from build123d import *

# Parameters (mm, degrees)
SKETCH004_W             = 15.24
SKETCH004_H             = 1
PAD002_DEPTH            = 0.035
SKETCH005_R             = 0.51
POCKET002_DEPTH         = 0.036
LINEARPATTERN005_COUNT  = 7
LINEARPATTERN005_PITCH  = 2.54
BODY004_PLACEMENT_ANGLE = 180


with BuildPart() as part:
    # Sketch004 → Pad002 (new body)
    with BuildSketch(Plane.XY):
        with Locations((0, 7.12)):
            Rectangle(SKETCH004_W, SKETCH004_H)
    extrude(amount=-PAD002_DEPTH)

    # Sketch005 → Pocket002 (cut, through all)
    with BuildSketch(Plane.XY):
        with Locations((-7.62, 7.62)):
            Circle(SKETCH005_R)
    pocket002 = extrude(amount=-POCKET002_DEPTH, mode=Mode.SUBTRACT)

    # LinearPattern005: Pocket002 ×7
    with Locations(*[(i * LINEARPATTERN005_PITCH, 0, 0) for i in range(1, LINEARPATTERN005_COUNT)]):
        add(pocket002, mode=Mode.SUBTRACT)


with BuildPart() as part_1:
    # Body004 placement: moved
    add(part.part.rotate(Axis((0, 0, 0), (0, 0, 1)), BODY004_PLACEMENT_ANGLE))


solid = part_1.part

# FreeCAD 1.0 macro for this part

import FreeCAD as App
import Part
import Sketcher
Q = App.Units.Quantity

doc = App.newDocument("Part")
body = doc.addObject("PartDesign::Body", "Body")

# Sketch on XY plane
sketch1 = doc.addObject("Sketcher::SketchObject", "Sketch")
body.addObject(sketch1)
sketch1.AttachmentSupport = (doc.XY_Plane, [""])
sketch1.MapMode = "FlatFace"
sketch1.addGeometry([
    Part.LineSegment(App.Vector(-7.62, 7.62, 0), App.Vector(-7.62, 6.62, 0)),
    Part.LineSegment(App.Vector(-7.62, 6.62, 0), App.Vector(7.62, 6.62, 0)),
    Part.LineSegment(App.Vector(7.62, 6.62, 0), App.Vector(7.62, 7.62, 0)),
    Part.LineSegment(App.Vector(7.62, 7.62, 0), App.Vector(-7.62, 7.62, 0)),
], False)
sketch1.addConstraint([
    Sketcher.Constraint("Coincident", 0, 2, 1, 1),
    Sketcher.Constraint("Coincident", 1, 2, 2, 1),
    Sketcher.Constraint("Coincident", 2, 2, 3, 1),
    Sketcher.Constraint("Coincident", 3, 2, 0, 1),
    Sketcher.Constraint("Vertical", 0),
    Sketcher.Constraint("Horizontal", 1),
    Sketcher.Constraint("Vertical", 2),
    Sketcher.Constraint("Horizontal", 3),
    Sketcher.Constraint("DistanceY", 0, 2, 0, 1, Q("1 mm")),
    Sketcher.Constraint("DistanceX", 1, 1, 1, 2, Q("15.24 mm")),
    Sketcher.Constraint("DistanceX", 0, 2, -1, 1, Q("7.62 mm")),
    Sketcher.Constraint("DistanceY", -1, 1, 0, 2, Q("6.62 mm")),
])
pad1 = doc.addObject("PartDesign::Pad", "Pad")
body.addObject(pad1)
pad1.Profile = sketch1
pad1.Length = 0.035
pad1.Reversed = True

# Sketch on XY plane
sketch2 = doc.addObject("Sketcher::SketchObject", "Sketch001")
body.addObject(sketch2)
sketch2.AttachmentSupport = (doc.XY_Plane, [""])
sketch2.MapMode = "FlatFace"
sketch2.addGeometry(Part.Circle(App.Vector(-7.62, 7.62, 0), App.Vector(0, 0, 1), 0.51), False)
sketch2.addConstraint([
    Sketcher.Constraint("Diameter", 0, Q("1.02 mm")),
    Sketcher.Constraint("DistanceX", 0, 3, -1, 1, Q("7.62 mm")),
    Sketcher.Constraint("DistanceY", -1, 1, 0, 3, Q("7.62 mm")),
])
pocket1 = doc.addObject("PartDesign::Pocket", "Pocket")
body.addObject(pocket1)
pocket1.Profile = sketch2
pocket1.Type = "ThroughAll"
doc.recompute()

linearpattern = doc.addObject("PartDesign::LinearPattern", "LinearPattern")
body.addObject(linearpattern)
linearpattern.Originals = [pocket1]
linearpattern.Direction = (doc.X_Axis, [""])
linearpattern.Mode = "offset"
linearpattern.Offset = 2.54
linearpattern.Occurrences = 7
body.Tip = linearpattern
body2 = doc.addObject("PartDesign::Body", "Body001")
doc.recompute()

body.Placement = App.Placement(App.Vector(0, 0, 0), App.Rotation(App.Vector(0, 0, 1), 180))
boolean = doc.addObject("PartDesign::Boolean", "Boolean")
body2.addObject(boolean)
boolean.Type = "Fuse"
boolean.addObjects([body])

doc.recompute()
